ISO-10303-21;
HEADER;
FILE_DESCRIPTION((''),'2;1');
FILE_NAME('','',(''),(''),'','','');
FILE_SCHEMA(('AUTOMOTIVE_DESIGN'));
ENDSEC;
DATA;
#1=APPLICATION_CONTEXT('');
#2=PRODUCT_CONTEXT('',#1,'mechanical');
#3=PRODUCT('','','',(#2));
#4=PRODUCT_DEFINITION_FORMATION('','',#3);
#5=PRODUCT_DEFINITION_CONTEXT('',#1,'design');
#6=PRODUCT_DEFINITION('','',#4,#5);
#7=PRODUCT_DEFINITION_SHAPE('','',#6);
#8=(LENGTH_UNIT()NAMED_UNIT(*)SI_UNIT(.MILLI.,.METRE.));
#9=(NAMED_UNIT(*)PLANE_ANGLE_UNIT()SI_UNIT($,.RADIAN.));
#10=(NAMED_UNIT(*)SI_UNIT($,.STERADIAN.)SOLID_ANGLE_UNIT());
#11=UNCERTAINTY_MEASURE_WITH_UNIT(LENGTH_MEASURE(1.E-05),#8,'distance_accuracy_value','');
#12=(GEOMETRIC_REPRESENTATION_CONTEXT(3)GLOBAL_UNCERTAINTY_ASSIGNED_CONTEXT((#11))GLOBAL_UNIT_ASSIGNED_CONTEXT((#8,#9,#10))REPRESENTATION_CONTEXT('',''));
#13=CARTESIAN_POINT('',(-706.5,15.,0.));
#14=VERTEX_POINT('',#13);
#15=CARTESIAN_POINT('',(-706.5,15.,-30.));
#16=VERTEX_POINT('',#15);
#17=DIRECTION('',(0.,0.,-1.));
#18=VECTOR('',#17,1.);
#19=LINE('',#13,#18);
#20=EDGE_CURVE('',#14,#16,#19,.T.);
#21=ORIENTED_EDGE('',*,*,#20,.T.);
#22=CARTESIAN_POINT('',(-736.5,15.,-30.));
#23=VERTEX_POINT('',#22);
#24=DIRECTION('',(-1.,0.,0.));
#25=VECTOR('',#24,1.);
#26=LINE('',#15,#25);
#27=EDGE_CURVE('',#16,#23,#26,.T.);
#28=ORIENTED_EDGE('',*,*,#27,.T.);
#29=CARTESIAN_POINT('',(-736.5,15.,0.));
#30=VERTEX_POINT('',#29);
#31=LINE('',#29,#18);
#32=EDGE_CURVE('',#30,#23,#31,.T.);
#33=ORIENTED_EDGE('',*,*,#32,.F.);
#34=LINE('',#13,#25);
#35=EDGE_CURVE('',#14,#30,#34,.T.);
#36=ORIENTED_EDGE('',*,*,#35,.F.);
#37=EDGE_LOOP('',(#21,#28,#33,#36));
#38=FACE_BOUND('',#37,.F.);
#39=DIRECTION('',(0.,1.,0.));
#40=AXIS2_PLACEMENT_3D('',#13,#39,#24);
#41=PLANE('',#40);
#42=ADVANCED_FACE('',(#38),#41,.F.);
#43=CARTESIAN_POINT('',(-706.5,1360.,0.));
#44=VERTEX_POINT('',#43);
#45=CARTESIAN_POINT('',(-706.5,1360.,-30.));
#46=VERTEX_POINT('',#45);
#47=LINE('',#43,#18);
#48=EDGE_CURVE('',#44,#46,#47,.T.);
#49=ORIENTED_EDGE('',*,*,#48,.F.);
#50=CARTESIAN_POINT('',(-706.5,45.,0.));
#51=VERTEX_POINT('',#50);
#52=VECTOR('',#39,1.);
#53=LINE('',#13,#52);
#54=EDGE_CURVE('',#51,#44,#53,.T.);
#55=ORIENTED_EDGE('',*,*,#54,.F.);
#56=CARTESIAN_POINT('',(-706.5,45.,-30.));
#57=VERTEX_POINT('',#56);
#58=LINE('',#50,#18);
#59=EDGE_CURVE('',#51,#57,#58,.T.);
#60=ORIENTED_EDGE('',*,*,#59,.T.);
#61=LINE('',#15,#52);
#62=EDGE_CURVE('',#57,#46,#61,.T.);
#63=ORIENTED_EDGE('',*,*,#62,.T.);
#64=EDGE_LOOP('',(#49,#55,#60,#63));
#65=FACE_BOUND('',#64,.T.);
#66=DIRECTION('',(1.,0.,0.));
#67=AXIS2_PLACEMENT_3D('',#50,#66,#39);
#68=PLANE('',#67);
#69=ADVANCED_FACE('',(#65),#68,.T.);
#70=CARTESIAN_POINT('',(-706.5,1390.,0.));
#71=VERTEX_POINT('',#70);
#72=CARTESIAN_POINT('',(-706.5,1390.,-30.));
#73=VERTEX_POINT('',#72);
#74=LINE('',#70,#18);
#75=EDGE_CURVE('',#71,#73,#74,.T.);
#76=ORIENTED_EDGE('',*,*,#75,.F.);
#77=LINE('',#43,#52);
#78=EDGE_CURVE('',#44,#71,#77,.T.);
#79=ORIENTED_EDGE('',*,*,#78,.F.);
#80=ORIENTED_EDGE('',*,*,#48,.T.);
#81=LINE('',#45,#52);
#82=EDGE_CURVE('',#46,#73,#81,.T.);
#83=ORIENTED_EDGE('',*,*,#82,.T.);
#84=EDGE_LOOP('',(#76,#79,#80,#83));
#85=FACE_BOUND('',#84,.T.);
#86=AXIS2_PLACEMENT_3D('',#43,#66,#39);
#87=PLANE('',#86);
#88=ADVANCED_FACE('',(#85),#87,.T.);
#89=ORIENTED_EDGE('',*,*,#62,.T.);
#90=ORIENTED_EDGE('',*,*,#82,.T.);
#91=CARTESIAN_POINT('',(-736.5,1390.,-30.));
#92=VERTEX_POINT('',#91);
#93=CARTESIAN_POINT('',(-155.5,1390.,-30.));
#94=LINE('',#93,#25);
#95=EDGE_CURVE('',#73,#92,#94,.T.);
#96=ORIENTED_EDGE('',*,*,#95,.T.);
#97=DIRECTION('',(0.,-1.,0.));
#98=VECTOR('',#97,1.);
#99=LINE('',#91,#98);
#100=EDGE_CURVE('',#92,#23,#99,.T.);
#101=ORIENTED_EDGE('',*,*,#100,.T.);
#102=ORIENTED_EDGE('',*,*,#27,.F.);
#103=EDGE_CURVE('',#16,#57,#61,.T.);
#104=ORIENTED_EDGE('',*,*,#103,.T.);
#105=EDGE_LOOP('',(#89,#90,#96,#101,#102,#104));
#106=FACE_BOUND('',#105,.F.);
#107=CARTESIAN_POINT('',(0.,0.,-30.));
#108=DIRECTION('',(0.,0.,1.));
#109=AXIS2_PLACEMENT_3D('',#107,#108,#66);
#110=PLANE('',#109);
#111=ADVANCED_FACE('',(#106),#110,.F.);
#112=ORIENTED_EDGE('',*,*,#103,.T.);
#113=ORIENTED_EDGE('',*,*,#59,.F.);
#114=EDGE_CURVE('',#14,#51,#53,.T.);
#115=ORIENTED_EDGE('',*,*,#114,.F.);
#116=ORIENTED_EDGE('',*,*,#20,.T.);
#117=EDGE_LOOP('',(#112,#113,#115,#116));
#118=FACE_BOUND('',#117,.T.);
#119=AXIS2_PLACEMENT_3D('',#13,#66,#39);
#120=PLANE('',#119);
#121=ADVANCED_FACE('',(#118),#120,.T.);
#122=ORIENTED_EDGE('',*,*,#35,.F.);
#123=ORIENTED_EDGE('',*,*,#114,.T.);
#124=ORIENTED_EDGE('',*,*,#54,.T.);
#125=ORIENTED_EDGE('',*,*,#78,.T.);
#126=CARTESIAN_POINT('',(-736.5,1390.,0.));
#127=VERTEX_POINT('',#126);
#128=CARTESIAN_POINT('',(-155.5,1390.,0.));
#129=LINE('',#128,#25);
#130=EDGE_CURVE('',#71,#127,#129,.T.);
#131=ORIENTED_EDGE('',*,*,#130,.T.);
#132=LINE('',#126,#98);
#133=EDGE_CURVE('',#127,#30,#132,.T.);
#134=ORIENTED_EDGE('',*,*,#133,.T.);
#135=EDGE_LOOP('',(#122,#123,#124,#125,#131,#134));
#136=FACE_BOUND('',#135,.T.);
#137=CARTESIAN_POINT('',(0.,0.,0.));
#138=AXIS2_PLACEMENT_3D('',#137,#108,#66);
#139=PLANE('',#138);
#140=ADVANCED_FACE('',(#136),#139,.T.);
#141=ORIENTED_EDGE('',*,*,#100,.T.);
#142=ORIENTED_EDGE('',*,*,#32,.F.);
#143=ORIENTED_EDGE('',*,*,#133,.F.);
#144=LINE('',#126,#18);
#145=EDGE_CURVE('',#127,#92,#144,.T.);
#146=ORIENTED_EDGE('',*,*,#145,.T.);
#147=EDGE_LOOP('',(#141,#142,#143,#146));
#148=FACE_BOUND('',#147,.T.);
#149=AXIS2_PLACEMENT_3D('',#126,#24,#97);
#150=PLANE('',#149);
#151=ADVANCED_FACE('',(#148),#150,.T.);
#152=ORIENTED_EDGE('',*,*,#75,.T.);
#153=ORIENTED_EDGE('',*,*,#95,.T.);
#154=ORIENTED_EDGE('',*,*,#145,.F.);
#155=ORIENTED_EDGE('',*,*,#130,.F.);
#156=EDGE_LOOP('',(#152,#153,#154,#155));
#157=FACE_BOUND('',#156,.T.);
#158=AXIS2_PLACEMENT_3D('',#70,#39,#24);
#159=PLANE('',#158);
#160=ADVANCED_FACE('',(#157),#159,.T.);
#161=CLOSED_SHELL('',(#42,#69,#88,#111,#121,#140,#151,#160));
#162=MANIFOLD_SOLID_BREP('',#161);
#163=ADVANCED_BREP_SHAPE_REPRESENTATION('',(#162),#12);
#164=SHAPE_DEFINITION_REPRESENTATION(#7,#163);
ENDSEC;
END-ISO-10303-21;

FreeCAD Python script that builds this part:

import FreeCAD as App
import Part
import Sketcher
from FreeCAD import Vector
Q = App.Units.Quantity

doc = App.newDocument("Part")
body = doc.addObject("PartDesign::Body", "Body")

sketch1 = doc.addObject("Sketcher::SketchObject", "Sketch")
body.addObject(sketch1)
sketch1.AttachmentSupport = (doc.XY_Plane, [""])
sketch1.MapMode = "FlatFace"
sketch1.addGeometry(Part.LineSegment(Vector(-736, 15, 0), Vector(-706, 15, 0)), False)
sketch1.addGeometry(Part.LineSegment(Vector(-706, 15, 0), Vector(-706, 1390, 0)), False)
sketch1.addGeometry(Part.LineSegment(Vector(-706, 1390, 0), Vector(-736, 1390, 0)), False)
sketch1.addGeometry(Part.LineSegment(Vector(-736, 1390, 0), Vector(-736, 15, 0)), False)
sketch1.addConstraint(Sketcher.Constraint("Coincident", 0, 2, 1, 1))
sketch1.addConstraint(Sketcher.Constraint("Coincident", 1, 2, 2, 1))
sketch1.addConstraint(Sketcher.Constraint("Coincident", 2, 2, 3, 1))
sketch1.addConstraint(Sketcher.Constraint("Coincident", 3, 2, 0, 1))
sketch1.addConstraint(Sketcher.Constraint("Horizontal", 0))
sketch1.addConstraint(Sketcher.Constraint("Vertical", 1))
sketch1.addConstraint(Sketcher.Constraint("Horizontal", 2))
sketch1.addConstraint(Sketcher.Constraint("Vertical", 3))
sketch1.addConstraint(Sketcher.Constraint("DistanceX", 0, 1, 0, 2, Q("30 mm")))
sketch1.addConstraint(Sketcher.Constraint("DistanceY", 1, 1, 1, 2, Q("1375 mm")))
sketch1.addConstraint(Sketcher.Constraint("DistanceY", -1, 1, 0, 2, Q("15 mm")))
sketch1.addConstraint(Sketcher.Constraint("DistanceX", 0, 2, -1, 1, Q("706.5 mm")))
pad1 = doc.addObject("PartDesign::Pad", "Pad")
body.addObject(pad1)
pad1.Profile = sketch1
pad1.Length = 30
pad1.Reversed = True

doc.recompute()
